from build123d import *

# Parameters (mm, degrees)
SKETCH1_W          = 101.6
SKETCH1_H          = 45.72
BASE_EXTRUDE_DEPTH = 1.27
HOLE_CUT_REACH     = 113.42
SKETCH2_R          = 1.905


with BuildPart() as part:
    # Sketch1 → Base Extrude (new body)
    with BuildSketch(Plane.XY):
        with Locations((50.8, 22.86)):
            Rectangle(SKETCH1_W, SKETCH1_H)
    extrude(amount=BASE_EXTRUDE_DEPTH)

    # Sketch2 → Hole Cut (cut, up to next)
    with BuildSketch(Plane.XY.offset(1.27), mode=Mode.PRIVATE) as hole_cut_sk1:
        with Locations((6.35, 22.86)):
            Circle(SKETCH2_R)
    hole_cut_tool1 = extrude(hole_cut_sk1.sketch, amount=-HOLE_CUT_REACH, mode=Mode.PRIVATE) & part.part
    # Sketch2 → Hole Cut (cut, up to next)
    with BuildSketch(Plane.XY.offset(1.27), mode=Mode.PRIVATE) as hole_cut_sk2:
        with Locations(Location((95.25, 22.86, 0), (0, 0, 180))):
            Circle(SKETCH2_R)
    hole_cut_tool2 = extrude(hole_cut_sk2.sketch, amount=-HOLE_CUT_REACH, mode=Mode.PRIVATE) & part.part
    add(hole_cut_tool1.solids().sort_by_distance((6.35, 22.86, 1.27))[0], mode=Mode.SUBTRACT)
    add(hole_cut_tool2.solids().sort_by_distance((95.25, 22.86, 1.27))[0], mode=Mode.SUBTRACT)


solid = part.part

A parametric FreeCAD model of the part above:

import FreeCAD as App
import Part
import Sketcher
Q = App.Units.Quantity

doc = App.newDocument("Part")
body = doc.addObject("PartDesign::Body", "Body")

# Sketch on XY plane
sketch1 = body.newObject("Sketcher::SketchObject", "Sketch")
sketch1.AttachmentSupport = (doc.getObject("XY_Plane"), [""])
sketch1.MapMode = "FlatFace"
sketch1.addGeometry(Part.LineSegment(App.Vector(0, 46, 0), App.Vector(0, 0, 0)), False)
sketch1.addGeometry(Part.LineSegment(App.Vector(0, 0, 0), App.Vector(102, 0, 0)), False)
sketch1.addGeometry(Part.LineSegment(App.Vector(102, 0, 0), App.Vector(102, 46, 0)), False)
sketch1.addGeometry(Part.LineSegment(App.Vector(102, 46, 0), App.Vector(0, 46, 0)), False)
sketch1.addConstraint(Sketcher.Constraint("Coincident", 0, 2, 1, 1))
sketch1.addConstraint(Sketcher.Constraint("Coincident", 1, 2, 2, 1))
sketch1.addConstraint(Sketcher.Constraint("Coincident", 2, 2, 3, 1))
sketch1.addConstraint(Sketcher.Constraint("Coincident", 3, 2, 0, 1))
sketch1.addConstraint(Sketcher.Constraint("Vertical", 0))
sketch1.addConstraint(Sketcher.Constraint("Horizontal", 1))
sketch1.addConstraint(Sketcher.Constraint("Vertical", 2))
sketch1.addConstraint(Sketcher.Constraint("Horizontal", 3))
sketch1.addConstraint(Sketcher.Constraint("Coincident", 0, 2, -1, 1))
sketch1.addConstraint(Sketcher.Constraint("DistanceX", 1, 1, 1, 2, Q("4 in")))
sketch1.addConstraint(Sketcher.Constraint("DistanceY", 0, 2, 0, 1, Q("1.8 in")))
pad1 = body.newObject("PartDesign::Pad", "Pad")
pad1.Profile = sketch1
pad1.Length = Q("0.05 in")

# Sketch on XY plane
sketch2 = body.newObject("Sketcher::SketchObject", "Sketch001")
sketch2.AttachmentSupport = (doc.getObject("XY_Plane"), [""])
sketch2.MapMode = "FlatFace"
sketch2.AttachmentOffset = App.Placement(App.Vector(0, 0, 0.05 * 25.4), App.Rotation())
sketch2.addGeometry(Part.Circle(App.Vector(6.3, 22.9, 0), App.Vector(0, 0, 1), 1.9), False)
sketch2.addConstraint(Sketcher.Constraint("Diameter", 0, Q("0.15 in")))
sketch2.addConstraint(Sketcher.Constraint("DistanceY", -1, 1, 0, 3, Q("0.9 in")))
sketch2.addConstraint(Sketcher.Constraint("DistanceX", -1, 1, 0, 3, Q("0.25 in")))
pocket1 = body.newObject("PartDesign::Pocket", "Pocket")
pocket1.Profile = sketch2
pocket1.Type = "UpToFirst"

# Sketch on XY plane
sketch3 = body.newObject("Sketcher::SketchObject", "Sketch002")
sketch3.AttachmentSupport = (doc.getObject("XY_Plane"), [""])
sketch3.MapMode = "FlatFace"
sketch3.AttachmentOffset = App.Placement(App.Vector(0, 0, 0.05 * 25.4), App.Rotation())
sketch3.addGeometry(Part.Circle(App.Vector(95.2, 22.9, 0), App.Vector(0, 0, 1), 1.9), False)
sketch3.addConstraint(Sketcher.Constraint("Diameter", 0, Q("0.15 in")))
sketch3.addConstraint(Sketcher.Constraint("DistanceY", -1, 1, 0, 3, Q("0.9 in")))
sketch3.addConstraint(Sketcher.Constraint("DistanceX", -1, 1, 0, 3, Q("3.75 in")))
pocket2 = body.newObject("PartDesign::Pocket", "Pocket001")
pocket2.Profile = sketch3
pocket2.Type = "UpToFirst"

doc.recompute()
